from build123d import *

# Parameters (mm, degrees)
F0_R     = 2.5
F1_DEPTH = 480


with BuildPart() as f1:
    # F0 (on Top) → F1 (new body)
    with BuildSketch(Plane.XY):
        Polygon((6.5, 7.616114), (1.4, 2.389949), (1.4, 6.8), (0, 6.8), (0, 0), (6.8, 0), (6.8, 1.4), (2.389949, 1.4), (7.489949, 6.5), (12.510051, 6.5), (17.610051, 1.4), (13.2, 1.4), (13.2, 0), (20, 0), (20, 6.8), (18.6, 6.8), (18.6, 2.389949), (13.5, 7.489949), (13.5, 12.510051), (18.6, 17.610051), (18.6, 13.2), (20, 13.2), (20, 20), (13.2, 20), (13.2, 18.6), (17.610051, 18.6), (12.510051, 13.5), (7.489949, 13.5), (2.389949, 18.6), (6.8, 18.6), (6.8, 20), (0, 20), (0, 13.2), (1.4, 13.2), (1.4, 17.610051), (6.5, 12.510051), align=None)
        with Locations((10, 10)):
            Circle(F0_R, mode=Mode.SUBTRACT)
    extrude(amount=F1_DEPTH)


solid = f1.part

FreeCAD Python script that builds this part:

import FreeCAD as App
import Part
import Sketcher
from FreeCAD import Vector
Q = App.Units.Quantity


def add_polygon(sketch, points):
    """Adds a closed chain of lines whose ends are joined by coincident constraints."""
    first, n = sketch.GeometryCount, len(points)
    for a, b in zip(points, points[1:] + points[:1]):
        sketch.addGeometry(Part.LineSegment(App.Vector(*a, 0), App.Vector(*b, 0)), False)
    for i in range(n):
        sketch.addConstraint(Sketcher.Constraint("Coincident", first + i, 2, first + (i + 1) % n, 1))

doc = App.newDocument("Part")
body = doc.addObject("PartDesign::Body", "Body")

# Sketch on XY plane
sketch1 = body.newObject("Sketcher::SketchObject", "Sketch")
sketch1.AttachmentSupport = (doc.getObject("XY_Plane"), [""])
sketch1.MapMode = "FlatFace"
add_polygon(sketch1, [(6.5, 7.6), (1.4, 2.4), (1.4, 6.8), (0, 6.8), (0, 0), (6.8, 0), (6.8, 1.4), (2.4, 1.4), (7.5, 6.5), (12.5, 6.5), (17.6, 1.4), (13.2, 1.4), (13.2, 0), (20, 0), (20, 6.8), (18.6, 6.8), (18.6, 2.4), (13.5, 7.5), (13.5, 12.5), (18.6, 17.6), (18.6, 13.2), (20, 13.2), (20, 20), (13.2, 20), (13.2, 18.6), (17.6, 18.6), (12.5, 13.5), (7.5, 13.5), (2.4, 18.6), (6.8, 18.6), (6.8, 20), (0, 20), (0, 13.2), (1.4, 13.2), (1.4, 17.6), (6.5, 12.5)])  # lines 0-35
sketch1.addGeometry(Part.Circle(Vector(10, 10, 0), Vector(0, 0, 1), 2.5), False)  # 36
sketch1.addConstraint(Sketcher.Constraint("Vertical", 1))
sketch1.addConstraint(Sketcher.Constraint("Horizontal", 2))
sketch1.addConstraint(Sketcher.Constraint("Vertical", 3))
sketch1.addConstraint(Sketcher.Constraint("Horizontal", 4))
sketch1.addConstraint(Sketcher.Constraint("Vertical", 5))
sketch1.addConstraint(Sketcher.Constraint("Horizontal", 6))
sketch1.addConstraint(Sketcher.Constraint("Horizontal", 8))
sketch1.addConstraint(Sketcher.Constraint("Horizontal", 10))
sketch1.addConstraint(Sketcher.Constraint("Vertical", 11))
sketch1.addConstraint(Sketcher.Constraint("Horizontal", 12))
sketch1.addConstraint(Sketcher.Constraint("Vertical", 13))
sketch1.addConstraint(Sketcher.Constraint("Horizontal", 14))
sketch1.addConstraint(Sketcher.Constraint("Vertical", 15))
sketch1.addConstraint(Sketcher.Constraint("Vertical", 17))
sketch1.addConstraint(Sketcher.Constraint("Vertical", 19))
sketch1.addConstraint(Sketcher.Constraint("Horizontal", 20))
sketch1.addConstraint(Sketcher.Constraint("Vertical", 21))
sketch1.addConstraint(Sketcher.Constraint("Horizontal", 22))
sketch1.addConstraint(Sketcher.Constraint("Vertical", 23))
sketch1.addConstraint(Sketcher.Constraint("Horizontal", 24))
sketch1.addConstraint(Sketcher.Constraint("Horizontal", 26))
sketch1.addConstraint(Sketcher.Constraint("Horizontal", 28))
sketch1.addConstraint(Sketcher.Constraint("Vertical", 29))
sketch1.addConstraint(Sketcher.Constraint("Horizontal", 30))
sketch1.addConstraint(Sketcher.Constraint("Vertical", 31))
sketch1.addConstraint(Sketcher.Constraint("Horizontal", 32))
sketch1.addConstraint(Sketcher.Constraint("Vertical", 33))
sketch1.addConstraint(Sketcher.Constraint("Vertical", 35))
sketch1.addConstraint(Sketcher.Constraint("Coincident", 3, 2, -1, 1))
sketch1.addConstraint(Sketcher.Constraint("PointOnObject", 11, 2, -1))
sketch1.addConstraint(Sketcher.Constraint("PointOnObject", 30, 2, -2))
sketch1.addConstraint(Sketcher.Constraint("Perpendicular", 7, 9))
sketch1.addConstraint(Sketcher.Constraint("Parallel", 9, 16))
sketch1.addConstraint(Sketcher.Constraint("Perpendicular", 16, 18))
sketch1.addConstraint(Sketcher.Constraint("Parallel", 18, 25))
sketch1.addConstraint(Sketcher.Constraint("Perpendicular", 25, 27))
sketch1.addConstraint(Sketcher.Constraint("Parallel", 27, 34))
sketch1.addConstraint(Sketcher.Constraint("Horizontal", 6, 2, 9, 2))
sketch1.addConstraint(Sketcher.Constraint("Horizontal", 2, 2, 13, 2))
sketch1.addConstraint(Sketcher.Constraint("Horizontal", 0, 2, 15, 2))
sketch1.addConstraint(Sketcher.Constraint("Horizontal", 24, 2, 27, 2))
sketch1.addConstraint(Sketcher.Constraint("Horizontal", 22, 2, 29, 2))
sketch1.addConstraint(Sketcher.Constraint("Horizontal", 20, 2, 31, 2))
sketch1.addConstraint(Sketcher.Constraint("Horizontal", 18, 2, 33, 2))
sketch1.addConstraint(Sketcher.Constraint("Horizontal", 17, 2, 34, 2))
sketch1.addConstraint(Sketcher.Constraint("Vertical", 15, 2, 18, 2))
sketch1.addConstraint(Sketcher.Constraint("Vertical", 13, 2, 20, 2))
sketch1.addConstraint(Sketcher.Constraint("Vertical", 11, 2, 22, 2))
sketch1.addConstraint(Sketcher.Constraint("Vertical", 9, 2, 24, 2))
sketch1.addConstraint(Sketcher.Constraint("Vertical", 8, 2, 25, 2))
sketch1.addConstraint(Sketcher.Constraint("Vertical", 7, 2, 26, 2))
sketch1.addConstraint(Sketcher.Constraint("Vertical", 6, 2, 27, 2))
sketch1.addConstraint(Sketcher.Constraint("Vertical", 5, 2, 28, 2))
sketch1.addConstraint(Sketcher.Constraint("Vertical", 1, 2, 32, 2))
sketch1.addConstraint(Sketcher.Constraint("Equal", 6, 10))
sketch1.addConstraint(Sketcher.Constraint("Equal", 4, 12))
sketch1.addConstraint(Sketcher.Constraint("Equal", 2, 14))
sketch1.addConstraint(Sketcher.Constraint("Equal", 28, 1))
sketch1.addConstraint(Sketcher.Constraint("Equal", 30, 3))
sketch1.addConstraint(Sketcher.Constraint("Equal", 32, 5))
sketch1.addConstraint(Sketcher.Constraint("Equal", 26, 17))
sketch1.addConstraint(Sketcher.Constraint("Equal", 15, 19))
sketch1.addConstraint(Sketcher.Constraint("Equal", 13, 21))
sketch1.addConstraint(Sketcher.Constraint("Equal", 11, 23))
sketch1.addConstraint(Sketcher.Constraint("Equal", 9, 16))
sketch1.addConstraint(Sketcher.Constraint("Diameter", 36, 5.0))
sketch1.addConstraint(Sketcher.Constraint("DistanceX", 2, 2, 2, 1, 1.4))
sketch1.addConstraint(Sketcher.Constraint("DistanceX", 4, 1, 4, 2, 6.8))
sketch1.addConstraint(Sketcher.Constraint("DistanceX", -1, 1, 36, 3, 10.0))
sketch1.addConstraint(Sketcher.Constraint("DistanceY", -1, 1, 36, 3, 10.0))
sketch1.addConstraint(Sketcher.Constraint("DistanceX", -1, 1, 12, 2, 20.0))
sketch1.addConstraint(Sketcher.Constraint("Angle", 0, Q("-134.299995 deg")))
sketch1.addConstraint(Sketcher.Constraint("DistanceY", 7, 2, 26, 2, 7.0))
sketch1.addConstraint(Sketcher.Constraint("DistanceX", 6, 2, 6, 1, 4.410051))
pad1 = body.newObject("PartDesign::Pad", "Pad")
pad1.Profile = sketch1
pad1.Length = 480

doc.recompute()
